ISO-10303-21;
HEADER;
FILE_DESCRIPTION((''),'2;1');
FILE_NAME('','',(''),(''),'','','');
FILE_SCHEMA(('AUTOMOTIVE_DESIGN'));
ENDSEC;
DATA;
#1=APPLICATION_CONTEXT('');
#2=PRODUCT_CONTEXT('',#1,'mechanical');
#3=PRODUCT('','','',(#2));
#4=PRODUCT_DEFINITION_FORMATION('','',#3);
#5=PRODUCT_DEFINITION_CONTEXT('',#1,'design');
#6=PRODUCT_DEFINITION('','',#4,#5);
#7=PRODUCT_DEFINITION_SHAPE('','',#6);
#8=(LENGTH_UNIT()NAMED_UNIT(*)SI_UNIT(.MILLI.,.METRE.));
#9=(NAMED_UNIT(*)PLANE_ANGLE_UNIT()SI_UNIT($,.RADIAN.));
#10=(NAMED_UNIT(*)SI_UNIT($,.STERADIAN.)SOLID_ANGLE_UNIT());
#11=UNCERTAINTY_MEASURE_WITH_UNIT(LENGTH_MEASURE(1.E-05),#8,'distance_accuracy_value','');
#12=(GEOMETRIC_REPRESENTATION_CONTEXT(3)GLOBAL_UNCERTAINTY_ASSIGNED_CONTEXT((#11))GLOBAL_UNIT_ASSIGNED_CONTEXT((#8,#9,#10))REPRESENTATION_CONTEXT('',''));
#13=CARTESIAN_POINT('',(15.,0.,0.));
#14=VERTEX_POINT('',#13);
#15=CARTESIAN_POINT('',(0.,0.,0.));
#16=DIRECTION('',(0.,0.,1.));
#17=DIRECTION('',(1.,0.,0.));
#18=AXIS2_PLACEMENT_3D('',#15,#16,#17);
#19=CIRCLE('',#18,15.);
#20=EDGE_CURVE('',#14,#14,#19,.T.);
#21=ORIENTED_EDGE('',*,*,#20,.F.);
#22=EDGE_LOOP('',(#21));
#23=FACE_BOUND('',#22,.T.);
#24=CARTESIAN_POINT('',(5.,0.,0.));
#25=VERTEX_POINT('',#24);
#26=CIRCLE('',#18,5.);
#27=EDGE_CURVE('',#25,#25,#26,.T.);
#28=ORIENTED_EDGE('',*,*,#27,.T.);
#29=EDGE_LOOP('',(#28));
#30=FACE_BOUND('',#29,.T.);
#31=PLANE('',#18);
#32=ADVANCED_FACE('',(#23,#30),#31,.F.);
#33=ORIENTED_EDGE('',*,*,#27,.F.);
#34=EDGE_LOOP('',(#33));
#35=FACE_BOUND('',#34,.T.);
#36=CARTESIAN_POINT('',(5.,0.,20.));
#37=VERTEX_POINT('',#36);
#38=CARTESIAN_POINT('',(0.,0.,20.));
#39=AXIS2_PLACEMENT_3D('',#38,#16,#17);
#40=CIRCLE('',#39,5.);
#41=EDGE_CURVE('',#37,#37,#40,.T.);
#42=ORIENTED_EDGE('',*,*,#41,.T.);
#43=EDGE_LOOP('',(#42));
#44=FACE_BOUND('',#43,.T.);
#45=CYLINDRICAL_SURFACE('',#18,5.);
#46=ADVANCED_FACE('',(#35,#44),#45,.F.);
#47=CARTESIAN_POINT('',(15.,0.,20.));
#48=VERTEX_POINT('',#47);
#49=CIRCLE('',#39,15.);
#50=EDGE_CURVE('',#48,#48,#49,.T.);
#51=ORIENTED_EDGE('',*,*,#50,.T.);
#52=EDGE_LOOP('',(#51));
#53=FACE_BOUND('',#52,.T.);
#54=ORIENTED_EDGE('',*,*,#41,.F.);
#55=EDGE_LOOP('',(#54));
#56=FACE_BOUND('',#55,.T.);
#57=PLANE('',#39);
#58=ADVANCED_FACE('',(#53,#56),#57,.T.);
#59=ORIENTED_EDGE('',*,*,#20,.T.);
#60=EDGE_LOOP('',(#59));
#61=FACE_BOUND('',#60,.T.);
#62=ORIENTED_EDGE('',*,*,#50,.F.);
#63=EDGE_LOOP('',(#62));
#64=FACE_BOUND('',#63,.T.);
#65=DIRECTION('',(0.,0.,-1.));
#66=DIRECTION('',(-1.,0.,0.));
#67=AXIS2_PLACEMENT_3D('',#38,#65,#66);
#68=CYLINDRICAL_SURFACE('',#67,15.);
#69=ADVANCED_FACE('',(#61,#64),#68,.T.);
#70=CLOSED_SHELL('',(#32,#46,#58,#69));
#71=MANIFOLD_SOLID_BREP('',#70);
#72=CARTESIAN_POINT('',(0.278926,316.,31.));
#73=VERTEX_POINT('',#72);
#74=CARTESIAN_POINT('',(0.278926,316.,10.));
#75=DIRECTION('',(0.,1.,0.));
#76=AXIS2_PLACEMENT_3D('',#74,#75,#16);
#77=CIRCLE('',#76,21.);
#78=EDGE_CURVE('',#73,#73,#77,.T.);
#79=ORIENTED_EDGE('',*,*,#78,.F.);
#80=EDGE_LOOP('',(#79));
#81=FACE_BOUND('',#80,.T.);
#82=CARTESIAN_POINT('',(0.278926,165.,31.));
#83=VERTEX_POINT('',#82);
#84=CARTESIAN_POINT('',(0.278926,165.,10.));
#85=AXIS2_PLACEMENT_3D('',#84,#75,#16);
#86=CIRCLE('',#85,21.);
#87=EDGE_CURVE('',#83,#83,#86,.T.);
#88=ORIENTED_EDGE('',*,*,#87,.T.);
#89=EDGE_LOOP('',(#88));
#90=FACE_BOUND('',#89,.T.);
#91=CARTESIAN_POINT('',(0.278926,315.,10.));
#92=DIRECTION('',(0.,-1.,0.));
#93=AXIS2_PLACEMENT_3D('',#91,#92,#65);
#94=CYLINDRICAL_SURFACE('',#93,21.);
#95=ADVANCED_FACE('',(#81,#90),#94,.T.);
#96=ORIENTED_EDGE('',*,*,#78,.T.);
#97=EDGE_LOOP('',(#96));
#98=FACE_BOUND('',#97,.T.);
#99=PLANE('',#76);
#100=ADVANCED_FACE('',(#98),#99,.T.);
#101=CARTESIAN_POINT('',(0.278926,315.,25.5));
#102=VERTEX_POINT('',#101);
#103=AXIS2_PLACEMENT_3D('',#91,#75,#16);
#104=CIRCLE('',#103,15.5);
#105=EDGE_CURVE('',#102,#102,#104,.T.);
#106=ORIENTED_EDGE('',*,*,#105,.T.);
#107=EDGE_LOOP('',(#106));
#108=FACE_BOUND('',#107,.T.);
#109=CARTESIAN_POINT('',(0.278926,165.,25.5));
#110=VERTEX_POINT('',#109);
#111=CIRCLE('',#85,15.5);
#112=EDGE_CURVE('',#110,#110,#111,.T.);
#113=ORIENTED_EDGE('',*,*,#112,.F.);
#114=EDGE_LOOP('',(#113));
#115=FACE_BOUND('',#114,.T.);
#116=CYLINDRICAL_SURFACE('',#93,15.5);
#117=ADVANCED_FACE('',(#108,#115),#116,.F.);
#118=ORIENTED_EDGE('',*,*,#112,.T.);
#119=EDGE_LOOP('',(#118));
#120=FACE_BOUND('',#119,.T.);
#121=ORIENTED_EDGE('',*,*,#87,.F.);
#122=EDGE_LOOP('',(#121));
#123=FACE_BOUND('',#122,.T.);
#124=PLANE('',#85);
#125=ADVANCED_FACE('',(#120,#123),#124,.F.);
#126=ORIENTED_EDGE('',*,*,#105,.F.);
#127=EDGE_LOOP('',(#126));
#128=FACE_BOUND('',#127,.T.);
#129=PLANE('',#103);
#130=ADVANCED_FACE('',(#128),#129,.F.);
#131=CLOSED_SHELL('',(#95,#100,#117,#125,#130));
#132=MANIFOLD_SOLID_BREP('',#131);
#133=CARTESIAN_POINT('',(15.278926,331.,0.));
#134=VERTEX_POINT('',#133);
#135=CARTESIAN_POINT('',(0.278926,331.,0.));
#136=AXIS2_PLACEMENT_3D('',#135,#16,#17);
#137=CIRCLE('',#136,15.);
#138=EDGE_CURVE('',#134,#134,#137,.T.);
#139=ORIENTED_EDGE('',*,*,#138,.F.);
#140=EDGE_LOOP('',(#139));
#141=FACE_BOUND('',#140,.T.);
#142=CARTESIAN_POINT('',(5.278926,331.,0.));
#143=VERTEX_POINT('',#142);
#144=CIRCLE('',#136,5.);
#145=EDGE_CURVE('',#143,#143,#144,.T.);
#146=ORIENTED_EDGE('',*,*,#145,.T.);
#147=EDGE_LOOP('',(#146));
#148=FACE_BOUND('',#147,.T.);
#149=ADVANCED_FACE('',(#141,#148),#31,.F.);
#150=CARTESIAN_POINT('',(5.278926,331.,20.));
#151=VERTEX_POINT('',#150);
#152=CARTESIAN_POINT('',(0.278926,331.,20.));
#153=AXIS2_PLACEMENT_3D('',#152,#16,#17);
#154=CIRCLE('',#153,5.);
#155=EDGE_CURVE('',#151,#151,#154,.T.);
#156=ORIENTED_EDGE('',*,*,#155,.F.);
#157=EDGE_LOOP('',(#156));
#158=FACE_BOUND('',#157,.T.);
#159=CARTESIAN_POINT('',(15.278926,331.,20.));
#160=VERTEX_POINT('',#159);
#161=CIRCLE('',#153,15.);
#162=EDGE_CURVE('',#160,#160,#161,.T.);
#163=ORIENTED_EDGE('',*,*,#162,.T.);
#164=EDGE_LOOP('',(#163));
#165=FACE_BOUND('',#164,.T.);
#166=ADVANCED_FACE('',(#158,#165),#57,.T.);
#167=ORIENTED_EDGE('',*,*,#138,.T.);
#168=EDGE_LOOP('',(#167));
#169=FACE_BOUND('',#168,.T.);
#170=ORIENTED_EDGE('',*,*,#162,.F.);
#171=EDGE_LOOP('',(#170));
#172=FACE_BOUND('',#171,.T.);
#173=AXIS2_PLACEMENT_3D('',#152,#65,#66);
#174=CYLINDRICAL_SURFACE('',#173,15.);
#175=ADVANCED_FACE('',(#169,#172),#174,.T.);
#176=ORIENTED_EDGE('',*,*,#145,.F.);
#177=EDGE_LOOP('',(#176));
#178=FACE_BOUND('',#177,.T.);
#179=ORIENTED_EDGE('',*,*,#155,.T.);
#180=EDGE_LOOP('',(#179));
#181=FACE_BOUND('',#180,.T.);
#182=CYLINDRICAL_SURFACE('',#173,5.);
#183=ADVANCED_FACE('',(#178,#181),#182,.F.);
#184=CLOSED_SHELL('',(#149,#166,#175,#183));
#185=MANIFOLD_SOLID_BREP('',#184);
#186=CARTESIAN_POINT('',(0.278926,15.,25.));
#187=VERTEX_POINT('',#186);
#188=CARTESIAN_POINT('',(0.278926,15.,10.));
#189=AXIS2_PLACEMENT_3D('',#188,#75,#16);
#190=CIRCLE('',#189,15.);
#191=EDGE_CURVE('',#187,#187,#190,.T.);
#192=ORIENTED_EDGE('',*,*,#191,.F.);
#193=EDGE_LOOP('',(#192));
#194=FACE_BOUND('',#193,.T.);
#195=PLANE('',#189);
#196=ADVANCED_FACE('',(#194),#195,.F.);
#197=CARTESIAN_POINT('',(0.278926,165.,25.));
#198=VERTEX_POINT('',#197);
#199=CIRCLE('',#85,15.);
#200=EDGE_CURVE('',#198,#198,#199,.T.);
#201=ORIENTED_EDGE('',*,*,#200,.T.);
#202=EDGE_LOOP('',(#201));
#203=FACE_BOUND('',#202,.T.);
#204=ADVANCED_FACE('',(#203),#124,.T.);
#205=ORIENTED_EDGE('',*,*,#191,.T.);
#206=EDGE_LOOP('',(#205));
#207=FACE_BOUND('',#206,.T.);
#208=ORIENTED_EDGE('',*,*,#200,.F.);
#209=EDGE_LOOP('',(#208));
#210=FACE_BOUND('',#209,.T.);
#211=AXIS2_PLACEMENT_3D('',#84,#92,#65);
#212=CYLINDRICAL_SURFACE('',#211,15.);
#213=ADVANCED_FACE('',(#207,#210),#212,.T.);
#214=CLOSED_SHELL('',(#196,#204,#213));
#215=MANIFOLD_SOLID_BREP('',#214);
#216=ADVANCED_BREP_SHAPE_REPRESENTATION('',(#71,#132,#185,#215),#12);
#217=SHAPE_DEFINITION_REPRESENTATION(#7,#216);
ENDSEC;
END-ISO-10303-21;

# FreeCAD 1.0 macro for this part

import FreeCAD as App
import Part
import Sketcher

V = App.Vector
Q = App.Units.Quantity

doc = App.newDocument("Part")
body = doc.addObject("PartDesign::Body", "Body")

# Sketch on XY plane
sketch1 = body.newObject("Sketcher::SketchObject", "Sketch")
sketch1.AttachmentSupport = (doc.getObject("XY_Plane"), [""])
sketch1.MapMode = "FlatFace"
sketch1.addGeometry(Part.Circle(V(0, 0, 0), V(0, 0, 1), 15), False)
sketch1.addConstraint(Sketcher.Constraint("Coincident", 0, 3, -1, 1))
sketch1.addConstraint(Sketcher.Constraint("Diameter", 0, Q("30 mm")))
pad1 = body.newObject("PartDesign::Pad", "Pad")
pad1.Profile = sketch1
pad1.Length = 20

# Sketch on XY plane
sketch2 = body.newObject("Sketcher::SketchObject", "Sketch001")
sketch2.AttachmentSupport = (doc.getObject("XY_Plane"), [""])
sketch2.MapMode = "FlatFace"
sketch2.AttachmentOffset = App.Placement(V(0, 0, 20), App.Rotation())
sketch2.addGeometry(Part.Circle(V(0, 0, 0), V(0, 0, 1), 5), False)
sketch2.addConstraint(Sketcher.Constraint("Coincident", 0, 3, -1, 1))
sketch2.addConstraint(Sketcher.Constraint("Diameter", 0, Q("10 mm")))
pocket1 = body.newObject("PartDesign::Pocket", "Pocket")
pocket1.Profile = sketch2
pocket1.Length = 20
body2 = doc.addObject("PartDesign::Body", "Body001")

# Sketch on XZ plane
sketch3 = body2.newObject("Sketcher::SketchObject", "Sketch002")
sketch3.AttachmentSupport = (doc.getObject("XZ_Plane001"), [""])
sketch3.MapMode = "FlatFace"
sketch3.AttachmentOffset = App.Placement(V(0, 0, -15), App.Rotation())
sketch3.addGeometry(Part.Circle(V(0, 10, 0), V(0, 0, 1), 15), False)
sketch3.addConstraint(Sketcher.Constraint("Diameter", 0, Q("30 mm")))
sketch3.addConstraint(Sketcher.Constraint("DistanceY", -1, 1, 0, 3, Q("10 mm")))
sketch3.addConstraint(Sketcher.Constraint("DistanceX", -1, 1, 0, 3, Q("0.278926 mm")))
pad2 = body2.newObject("PartDesign::Pad", "Pad001")
pad2.Profile = sketch3
pad2.Length = 150
pad2.Reversed = True
body3 = doc.addObject("PartDesign::Body", "Body002")

# Sketch on XZ plane
sketch4 = body3.newObject("Sketcher::SketchObject", "Sketch003")
sketch4.AttachmentSupport = (doc.getObject("XZ_Plane002"), [""])
sketch4.MapMode = "FlatFace"
sketch4.AttachmentOffset = App.Placement(V(0, 0, -165), App.Rotation())
sketch4.addGeometry(Part.Circle(V(0, 10, 0), V(0, 0, 1), 21), False)
sketch4.addGeometry(Part.Circle(V(0, 10, 0), V(0, 0, 1), 16), False)
sketch4.addConstraint(Sketcher.Constraint("Coincident", 1, 3, 0, 3))
sketch4.addConstraint(Sketcher.Constraint("Diameter", 0, Q("42 mm")))
sketch4.addConstraint(Sketcher.Constraint("Diameter", 1, Q("31 mm")))
sketch4.addConstraint(Sketcher.Constraint("DistanceY", -1, 1, 0, 3, Q("10 mm")))
sketch4.addConstraint(Sketcher.Constraint("DistanceX", -1, 1, 0, 3, Q("0.278926 mm")))
pad3 = body3.newObject("PartDesign::Pad", "Pad002")
pad3.Profile = sketch4
pad3.Length = 150
pad3.Reversed = True

# Sketch on XZ plane
sketch5 = body3.newObject("Sketcher::SketchObject", "Sketch004")
sketch5.AttachmentSupport = (doc.getObject("XZ_Plane002"), [""])
sketch5.MapMode = "FlatFace"
sketch5.AttachmentOffset = App.Placement(V(0, 0, -315), App.Rotation())
sketch5.addGeometry(Part.Circle(V(0, 10, 0), V(0, 0, 1), 21), False)
sketch5.addConstraint(Sketcher.Constraint("Diameter", 0, Q("42 mm")))
sketch5.addConstraint(Sketcher.Constraint("DistanceY", -1, 1, 0, 3, Q("10 mm")))
sketch5.addConstraint(Sketcher.Constraint("DistanceX", -1, 1, 0, 3, Q("0.278926 mm")))
pad4 = body3.newObject("PartDesign::Pad", "Pad003")
pad4.Profile = sketch5
pad4.Length = 1
pad4.Reversed = True
body4 = doc.addObject("PartDesign::Body", "Body003")

# Sketch on XY plane
sketch6 = body4.newObject("Sketcher::SketchObject", "Sketch005")
sketch6.AttachmentSupport = (doc.getObject("XY_Plane003"), [""])
sketch6.MapMode = "FlatFace"
sketch6.addGeometry(Part.Circle(V(0, 331, 0), V(0, 0, 1), 15), False)
sketch6.addGeometry(Part.Circle(V(0, 331, 0), V(0, 0, 1), 5), False)
sketch6.addConstraint(Sketcher.Constraint("Coincident", 1, 3, 0, 3))
sketch6.addConstraint(Sketcher.Constraint("Diameter", 0, Q("30 mm")))
sketch6.addConstraint(Sketcher.Constraint("Diameter", 1, Q("10 mm")))
sketch6.addConstraint(Sketcher.Constraint("DistanceY", -1, 1, 0, 3, Q("331 mm")))
sketch6.addConstraint(Sketcher.Constraint("DistanceX", -1, 1, 0, 3, Q("0.278926 mm")))
pad5 = body4.newObject("PartDesign::Pad", "Pad004")
pad5.Profile = sketch6
pad5.Length = 20

doc.recompute()
